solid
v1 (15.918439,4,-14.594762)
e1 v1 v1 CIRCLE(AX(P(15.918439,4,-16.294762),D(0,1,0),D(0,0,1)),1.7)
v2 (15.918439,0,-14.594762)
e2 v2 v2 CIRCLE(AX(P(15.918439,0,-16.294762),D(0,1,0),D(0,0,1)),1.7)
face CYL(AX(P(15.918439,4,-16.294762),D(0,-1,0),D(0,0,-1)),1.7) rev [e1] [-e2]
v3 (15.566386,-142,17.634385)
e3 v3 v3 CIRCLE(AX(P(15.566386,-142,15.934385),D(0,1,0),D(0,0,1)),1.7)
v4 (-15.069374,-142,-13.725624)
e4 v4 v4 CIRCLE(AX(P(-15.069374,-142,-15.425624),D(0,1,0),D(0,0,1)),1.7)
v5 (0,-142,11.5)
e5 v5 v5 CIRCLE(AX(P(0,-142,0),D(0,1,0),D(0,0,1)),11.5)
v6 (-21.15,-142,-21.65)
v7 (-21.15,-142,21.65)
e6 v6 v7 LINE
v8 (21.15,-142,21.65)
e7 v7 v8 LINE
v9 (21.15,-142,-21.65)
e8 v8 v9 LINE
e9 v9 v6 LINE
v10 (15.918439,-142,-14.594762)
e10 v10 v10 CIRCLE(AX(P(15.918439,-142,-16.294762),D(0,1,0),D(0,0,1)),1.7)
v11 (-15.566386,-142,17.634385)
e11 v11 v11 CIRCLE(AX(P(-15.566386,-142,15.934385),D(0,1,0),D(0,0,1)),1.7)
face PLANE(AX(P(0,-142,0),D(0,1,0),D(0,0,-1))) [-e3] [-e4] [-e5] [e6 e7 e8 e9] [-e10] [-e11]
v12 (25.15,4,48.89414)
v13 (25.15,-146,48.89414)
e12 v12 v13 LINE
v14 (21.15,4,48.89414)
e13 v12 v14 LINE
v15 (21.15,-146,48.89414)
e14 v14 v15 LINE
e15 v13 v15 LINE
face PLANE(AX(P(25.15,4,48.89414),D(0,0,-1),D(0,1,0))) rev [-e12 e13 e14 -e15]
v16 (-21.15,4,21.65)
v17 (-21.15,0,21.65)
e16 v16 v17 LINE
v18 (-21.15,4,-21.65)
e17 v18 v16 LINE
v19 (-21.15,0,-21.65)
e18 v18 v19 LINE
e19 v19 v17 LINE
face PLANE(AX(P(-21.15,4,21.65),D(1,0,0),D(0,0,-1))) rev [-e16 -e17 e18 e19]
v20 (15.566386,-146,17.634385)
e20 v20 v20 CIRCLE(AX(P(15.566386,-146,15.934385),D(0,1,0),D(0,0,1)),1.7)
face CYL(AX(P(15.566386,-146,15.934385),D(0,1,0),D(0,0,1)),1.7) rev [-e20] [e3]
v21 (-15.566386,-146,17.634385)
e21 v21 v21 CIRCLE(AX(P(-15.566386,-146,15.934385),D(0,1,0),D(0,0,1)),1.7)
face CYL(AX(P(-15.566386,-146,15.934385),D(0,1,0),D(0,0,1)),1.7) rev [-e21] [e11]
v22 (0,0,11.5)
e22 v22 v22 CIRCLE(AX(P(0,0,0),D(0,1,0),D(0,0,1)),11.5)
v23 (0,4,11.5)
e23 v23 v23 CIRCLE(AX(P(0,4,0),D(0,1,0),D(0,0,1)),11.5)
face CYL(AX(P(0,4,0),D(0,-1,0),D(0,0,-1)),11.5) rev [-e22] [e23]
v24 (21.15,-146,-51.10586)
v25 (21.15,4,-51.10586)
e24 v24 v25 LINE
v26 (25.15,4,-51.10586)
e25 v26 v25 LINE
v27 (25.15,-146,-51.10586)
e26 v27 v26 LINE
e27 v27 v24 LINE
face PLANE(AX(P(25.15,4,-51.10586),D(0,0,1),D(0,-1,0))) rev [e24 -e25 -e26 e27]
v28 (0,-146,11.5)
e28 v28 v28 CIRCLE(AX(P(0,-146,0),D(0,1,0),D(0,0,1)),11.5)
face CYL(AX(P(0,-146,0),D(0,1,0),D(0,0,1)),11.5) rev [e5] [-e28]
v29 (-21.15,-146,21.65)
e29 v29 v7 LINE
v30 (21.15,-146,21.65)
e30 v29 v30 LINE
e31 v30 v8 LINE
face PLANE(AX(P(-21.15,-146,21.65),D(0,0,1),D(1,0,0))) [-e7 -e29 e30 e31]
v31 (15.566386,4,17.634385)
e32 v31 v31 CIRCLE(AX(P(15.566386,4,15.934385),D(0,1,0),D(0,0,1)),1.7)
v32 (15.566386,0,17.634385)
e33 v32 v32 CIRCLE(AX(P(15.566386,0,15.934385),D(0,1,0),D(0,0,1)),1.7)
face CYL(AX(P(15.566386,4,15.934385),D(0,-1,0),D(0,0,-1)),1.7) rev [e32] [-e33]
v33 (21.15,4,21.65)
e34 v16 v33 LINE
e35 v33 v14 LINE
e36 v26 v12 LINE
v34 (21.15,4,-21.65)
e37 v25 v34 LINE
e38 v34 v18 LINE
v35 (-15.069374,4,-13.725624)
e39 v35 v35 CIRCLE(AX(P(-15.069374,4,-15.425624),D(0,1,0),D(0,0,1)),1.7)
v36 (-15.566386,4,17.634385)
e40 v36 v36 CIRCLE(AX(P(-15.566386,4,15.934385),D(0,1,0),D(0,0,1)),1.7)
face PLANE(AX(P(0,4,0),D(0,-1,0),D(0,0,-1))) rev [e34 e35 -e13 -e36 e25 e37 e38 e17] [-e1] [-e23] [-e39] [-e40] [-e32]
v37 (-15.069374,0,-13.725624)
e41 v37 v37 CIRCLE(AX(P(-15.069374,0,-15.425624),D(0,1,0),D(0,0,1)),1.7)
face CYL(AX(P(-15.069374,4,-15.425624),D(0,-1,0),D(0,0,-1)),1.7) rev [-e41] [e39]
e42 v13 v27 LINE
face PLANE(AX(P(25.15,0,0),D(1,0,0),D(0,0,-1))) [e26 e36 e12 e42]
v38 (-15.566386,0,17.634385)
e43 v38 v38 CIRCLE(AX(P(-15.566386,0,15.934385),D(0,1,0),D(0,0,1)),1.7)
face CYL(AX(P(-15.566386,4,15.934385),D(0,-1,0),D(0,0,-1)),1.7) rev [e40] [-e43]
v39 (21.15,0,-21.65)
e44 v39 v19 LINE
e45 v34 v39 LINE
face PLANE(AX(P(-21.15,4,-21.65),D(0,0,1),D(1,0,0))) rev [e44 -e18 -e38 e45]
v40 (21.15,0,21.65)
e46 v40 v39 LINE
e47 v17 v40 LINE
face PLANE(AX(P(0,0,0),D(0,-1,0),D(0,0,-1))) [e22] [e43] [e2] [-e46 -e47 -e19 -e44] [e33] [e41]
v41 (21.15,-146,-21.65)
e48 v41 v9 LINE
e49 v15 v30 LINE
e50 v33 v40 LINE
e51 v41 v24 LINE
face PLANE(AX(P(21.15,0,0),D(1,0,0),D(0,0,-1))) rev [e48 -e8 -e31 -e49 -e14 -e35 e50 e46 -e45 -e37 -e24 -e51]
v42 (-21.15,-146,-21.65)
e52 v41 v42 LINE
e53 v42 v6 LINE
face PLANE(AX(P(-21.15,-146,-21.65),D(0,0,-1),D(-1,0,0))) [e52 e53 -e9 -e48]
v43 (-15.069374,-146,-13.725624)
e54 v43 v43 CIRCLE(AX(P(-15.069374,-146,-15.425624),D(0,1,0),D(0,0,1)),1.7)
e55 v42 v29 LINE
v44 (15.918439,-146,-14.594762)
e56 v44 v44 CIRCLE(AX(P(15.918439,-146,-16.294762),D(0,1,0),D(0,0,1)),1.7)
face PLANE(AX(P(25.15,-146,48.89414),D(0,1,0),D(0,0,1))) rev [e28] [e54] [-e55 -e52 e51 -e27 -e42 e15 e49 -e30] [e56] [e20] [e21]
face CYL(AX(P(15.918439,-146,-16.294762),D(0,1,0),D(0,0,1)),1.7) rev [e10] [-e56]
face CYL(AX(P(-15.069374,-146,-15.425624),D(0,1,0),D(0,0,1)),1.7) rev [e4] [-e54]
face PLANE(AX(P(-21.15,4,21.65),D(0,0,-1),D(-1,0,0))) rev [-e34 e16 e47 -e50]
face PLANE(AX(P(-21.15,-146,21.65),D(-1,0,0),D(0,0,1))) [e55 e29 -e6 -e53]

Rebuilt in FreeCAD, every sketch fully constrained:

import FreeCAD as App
import Part
import Sketcher

V = App.Vector


def add_polygon(sketch, points):
    """Adds a closed chain of lines whose ends are joined by coincident constraints."""
    first, n = sketch.GeometryCount, len(points)
    for a, b in zip(points, points[1:] + points[:1]):
        sketch.addGeometry(Part.LineSegment(App.Vector(*a, 0), App.Vector(*b, 0)), False)
    for i in range(n):
        sketch.addConstraint(Sketcher.Constraint("Coincident", first + i, 2, first + (i + 1) % n, 1))

doc = App.newDocument("Part")
body = doc.addObject("PartDesign::Body", "Body")

sketch1 = body.newObject("Sketcher::SketchObject", "Sketch")
sketch1.AttachmentSupport = (doc.getObject("XZ_Plane"), [""])
sketch1.MapMode = "FlatFace"
add_polygon(sketch1, [(-21.1, -21.6), (-21.1, 21.6), (21.1, 21.6), (21.1, -21.6)])
sketch1.addGeometry(Part.Circle(V(-15.6, 15.9, 0), V(0, 0, 1), 1.7), False)
sketch1.addGeometry(Part.Circle(V(0, 0, 0), V(0, 0, 1), 11.5), False)
sketch1.addGeometry(Part.Circle(V(15.6, 15.9, 0), V(0, 0, 1), 1.7), False)
sketch1.addGeometry(Part.Circle(V(-15.1, -15.4, 0), V(0, 0, 1), 1.7), False)
sketch1.addGeometry(Part.Circle(V(15.9, -16.3, 0), V(0, 0, 1), 1.7), False)
sketch1.addConstraint([
    Sketcher.Constraint("Vertical", 0),
    Sketcher.Constraint("Horizontal", 1),
    Sketcher.Constraint("Vertical", 2),
    Sketcher.Constraint("Horizontal", 3),
    Sketcher.Constraint("Coincident", 5, 3, -1, 1),
    Sketcher.Constraint("Equal", 4, 6),
    Sketcher.Constraint("Equal", 6, 7),
    Sketcher.Constraint("Equal", 7, 8),
    Sketcher.Constraint("Symmetric", 0, 2, 2, 2, -1, 1),
    Sketcher.Constraint("Symmetric", 4, 3, 6, 3, -2),
    Sketcher.Constraint("Diameter", 5, 23.0),
    Sketcher.Constraint("Diameter", 4, 3.4),
    Sketcher.Constraint("DistanceX", 1, 1, 1, 2, 42.3),
    Sketcher.Constraint("DistanceY", 0, 1, 0, 2, 43.3),
    Sketcher.Constraint("DistanceX", -1, 1, 8, 3, 15.918439),
    Sketcher.Constraint("DistanceY", 8, 3, -1, 1, 16.294762),
    Sketcher.Constraint("DistanceX", 4, 3, 6, 3, 31.132771),
    Sketcher.Constraint("DistanceX", 4, 3, 7, 3, 0.497011),
    Sketcher.Constraint("DistanceY", 7, 3, 4, 3, 31.36001),
    Sketcher.Constraint("DistanceY", -1, 1, 4, 3, 15.934385),
])
pad1 = body.newObject("PartDesign::Pad", "Pad")
pad1.Profile = sketch1
pad1.Length = 4
pad1.Reversed = True

sketch2 = body.newObject("Sketcher::SketchObject", "Sketch001")
sketch2.AttachmentSupport = (doc.getObject("YZ_Plane"), [""])
sketch2.MapMode = "FlatFace"
sketch2.AttachmentOffset = App.Placement(V(0, 0, 21.15), App.Rotation())
add_polygon(sketch2, [(4, 49), (-146, 49), (-146, -51), (4, -51)])
sketch2.addConstraint([
    Sketcher.Constraint("Horizontal", 0),
    Sketcher.Constraint("Vertical", 1),
    Sketcher.Constraint("Horizontal", 2),
    Sketcher.Constraint("Vertical", 3),
    Sketcher.Constraint("DistanceX", 0, 2, 0, 1, 150.0),
    Sketcher.Constraint("DistanceY", 1, 2, 1, 1, 100.0),
    Sketcher.Constraint("DistanceX", 0, 2, -1, 1, 146.0),
    Sketcher.Constraint("DistanceY", -1, 1, 0, 2, 48.89414),
])
pad2 = body.newObject("PartDesign::Pad", "Pad001")
pad2.Profile = sketch2
pad2.Length = 4
doc.recompute()

datumplane = body.newObject("PartDesign::Plane", "DatumPlane")
datumplane.AttachmentSupport = (doc.getObject("XZ_Plane"), [""])
datumplane.MapMode = "FlatFace"
datumplane.AttachmentOffset = App.Placement(V(0, 0, 71), App.Rotation())
mirrored = body.newObject("PartDesign::Mirrored", "Mirrored")
mirrored.Originals = [pad1]
mirrored.MirrorPlane = (datumplane, [""])
body.Tip = mirrored

doc.recompute()
